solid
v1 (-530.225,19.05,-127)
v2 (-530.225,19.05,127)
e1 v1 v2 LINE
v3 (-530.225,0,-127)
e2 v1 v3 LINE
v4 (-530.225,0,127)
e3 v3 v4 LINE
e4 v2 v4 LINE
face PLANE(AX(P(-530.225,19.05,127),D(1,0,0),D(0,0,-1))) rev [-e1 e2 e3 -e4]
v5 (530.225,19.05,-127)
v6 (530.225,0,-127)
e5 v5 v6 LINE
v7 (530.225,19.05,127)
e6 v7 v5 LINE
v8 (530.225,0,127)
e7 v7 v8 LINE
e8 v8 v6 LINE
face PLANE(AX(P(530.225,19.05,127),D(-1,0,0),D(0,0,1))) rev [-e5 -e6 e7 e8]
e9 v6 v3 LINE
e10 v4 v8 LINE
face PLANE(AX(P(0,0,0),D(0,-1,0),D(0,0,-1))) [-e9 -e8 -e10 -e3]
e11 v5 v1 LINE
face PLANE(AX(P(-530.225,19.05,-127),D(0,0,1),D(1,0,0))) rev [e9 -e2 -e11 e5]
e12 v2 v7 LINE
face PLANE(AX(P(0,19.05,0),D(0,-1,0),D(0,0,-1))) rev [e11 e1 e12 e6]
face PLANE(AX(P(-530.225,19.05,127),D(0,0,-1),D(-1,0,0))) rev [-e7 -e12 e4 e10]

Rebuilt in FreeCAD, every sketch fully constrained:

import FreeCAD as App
import Part
import Sketcher
from FreeCAD import Vector
Q = App.Units.Quantity

doc = App.newDocument("Part")
body = doc.addObject("PartDesign::Body", "Body")

sketch1 = doc.addObject("Sketcher::SketchObject", "Sketch")
body.addObject(sketch1)
sketch1.AttachmentSupport = (doc.XZ_Plane, [""])
sketch1.MapMode = "FlatFace"
sketch1.addGeometry([
    Part.LineSegment(Vector(-530, -127, 0), Vector(-530, 127, 0)),
    Part.LineSegment(Vector(-530, 127, 0), Vector(530, 127, 0)),
    Part.LineSegment(Vector(530, 127, 0), Vector(530, -127, 0)),
    Part.LineSegment(Vector(530, -127, 0), Vector(-530, -127, 0)),
], False)
sketch1.addConstraint([
    Sketcher.Constraint("Coincident", 0, 2, 1, 1),
    Sketcher.Constraint("Coincident", 1, 2, 2, 1),
    Sketcher.Constraint("Coincident", 2, 2, 3, 1),
    Sketcher.Constraint("Coincident", 3, 2, 0, 1),
    Sketcher.Constraint("Vertical", 0),
    Sketcher.Constraint("Horizontal", 1),
    Sketcher.Constraint("Vertical", 2),
    Sketcher.Constraint("Horizontal", 3),
    Sketcher.Constraint("Symmetric", 0, 2, 2, 2, -1, 1),
    Sketcher.Constraint("DistanceY", 0, 1, 0, 2, Q("10 in")),
    Sketcher.Constraint("DistanceX", 1, 1, 1, 2, Q("41.75 in")),
])
pad1 = doc.addObject("PartDesign::Pad", "Pad")
body.addObject(pad1)
pad1.Profile = sketch1
pad1.Length = Q("0.75 in")
pad1.Reversed = True

doc.recompute()
